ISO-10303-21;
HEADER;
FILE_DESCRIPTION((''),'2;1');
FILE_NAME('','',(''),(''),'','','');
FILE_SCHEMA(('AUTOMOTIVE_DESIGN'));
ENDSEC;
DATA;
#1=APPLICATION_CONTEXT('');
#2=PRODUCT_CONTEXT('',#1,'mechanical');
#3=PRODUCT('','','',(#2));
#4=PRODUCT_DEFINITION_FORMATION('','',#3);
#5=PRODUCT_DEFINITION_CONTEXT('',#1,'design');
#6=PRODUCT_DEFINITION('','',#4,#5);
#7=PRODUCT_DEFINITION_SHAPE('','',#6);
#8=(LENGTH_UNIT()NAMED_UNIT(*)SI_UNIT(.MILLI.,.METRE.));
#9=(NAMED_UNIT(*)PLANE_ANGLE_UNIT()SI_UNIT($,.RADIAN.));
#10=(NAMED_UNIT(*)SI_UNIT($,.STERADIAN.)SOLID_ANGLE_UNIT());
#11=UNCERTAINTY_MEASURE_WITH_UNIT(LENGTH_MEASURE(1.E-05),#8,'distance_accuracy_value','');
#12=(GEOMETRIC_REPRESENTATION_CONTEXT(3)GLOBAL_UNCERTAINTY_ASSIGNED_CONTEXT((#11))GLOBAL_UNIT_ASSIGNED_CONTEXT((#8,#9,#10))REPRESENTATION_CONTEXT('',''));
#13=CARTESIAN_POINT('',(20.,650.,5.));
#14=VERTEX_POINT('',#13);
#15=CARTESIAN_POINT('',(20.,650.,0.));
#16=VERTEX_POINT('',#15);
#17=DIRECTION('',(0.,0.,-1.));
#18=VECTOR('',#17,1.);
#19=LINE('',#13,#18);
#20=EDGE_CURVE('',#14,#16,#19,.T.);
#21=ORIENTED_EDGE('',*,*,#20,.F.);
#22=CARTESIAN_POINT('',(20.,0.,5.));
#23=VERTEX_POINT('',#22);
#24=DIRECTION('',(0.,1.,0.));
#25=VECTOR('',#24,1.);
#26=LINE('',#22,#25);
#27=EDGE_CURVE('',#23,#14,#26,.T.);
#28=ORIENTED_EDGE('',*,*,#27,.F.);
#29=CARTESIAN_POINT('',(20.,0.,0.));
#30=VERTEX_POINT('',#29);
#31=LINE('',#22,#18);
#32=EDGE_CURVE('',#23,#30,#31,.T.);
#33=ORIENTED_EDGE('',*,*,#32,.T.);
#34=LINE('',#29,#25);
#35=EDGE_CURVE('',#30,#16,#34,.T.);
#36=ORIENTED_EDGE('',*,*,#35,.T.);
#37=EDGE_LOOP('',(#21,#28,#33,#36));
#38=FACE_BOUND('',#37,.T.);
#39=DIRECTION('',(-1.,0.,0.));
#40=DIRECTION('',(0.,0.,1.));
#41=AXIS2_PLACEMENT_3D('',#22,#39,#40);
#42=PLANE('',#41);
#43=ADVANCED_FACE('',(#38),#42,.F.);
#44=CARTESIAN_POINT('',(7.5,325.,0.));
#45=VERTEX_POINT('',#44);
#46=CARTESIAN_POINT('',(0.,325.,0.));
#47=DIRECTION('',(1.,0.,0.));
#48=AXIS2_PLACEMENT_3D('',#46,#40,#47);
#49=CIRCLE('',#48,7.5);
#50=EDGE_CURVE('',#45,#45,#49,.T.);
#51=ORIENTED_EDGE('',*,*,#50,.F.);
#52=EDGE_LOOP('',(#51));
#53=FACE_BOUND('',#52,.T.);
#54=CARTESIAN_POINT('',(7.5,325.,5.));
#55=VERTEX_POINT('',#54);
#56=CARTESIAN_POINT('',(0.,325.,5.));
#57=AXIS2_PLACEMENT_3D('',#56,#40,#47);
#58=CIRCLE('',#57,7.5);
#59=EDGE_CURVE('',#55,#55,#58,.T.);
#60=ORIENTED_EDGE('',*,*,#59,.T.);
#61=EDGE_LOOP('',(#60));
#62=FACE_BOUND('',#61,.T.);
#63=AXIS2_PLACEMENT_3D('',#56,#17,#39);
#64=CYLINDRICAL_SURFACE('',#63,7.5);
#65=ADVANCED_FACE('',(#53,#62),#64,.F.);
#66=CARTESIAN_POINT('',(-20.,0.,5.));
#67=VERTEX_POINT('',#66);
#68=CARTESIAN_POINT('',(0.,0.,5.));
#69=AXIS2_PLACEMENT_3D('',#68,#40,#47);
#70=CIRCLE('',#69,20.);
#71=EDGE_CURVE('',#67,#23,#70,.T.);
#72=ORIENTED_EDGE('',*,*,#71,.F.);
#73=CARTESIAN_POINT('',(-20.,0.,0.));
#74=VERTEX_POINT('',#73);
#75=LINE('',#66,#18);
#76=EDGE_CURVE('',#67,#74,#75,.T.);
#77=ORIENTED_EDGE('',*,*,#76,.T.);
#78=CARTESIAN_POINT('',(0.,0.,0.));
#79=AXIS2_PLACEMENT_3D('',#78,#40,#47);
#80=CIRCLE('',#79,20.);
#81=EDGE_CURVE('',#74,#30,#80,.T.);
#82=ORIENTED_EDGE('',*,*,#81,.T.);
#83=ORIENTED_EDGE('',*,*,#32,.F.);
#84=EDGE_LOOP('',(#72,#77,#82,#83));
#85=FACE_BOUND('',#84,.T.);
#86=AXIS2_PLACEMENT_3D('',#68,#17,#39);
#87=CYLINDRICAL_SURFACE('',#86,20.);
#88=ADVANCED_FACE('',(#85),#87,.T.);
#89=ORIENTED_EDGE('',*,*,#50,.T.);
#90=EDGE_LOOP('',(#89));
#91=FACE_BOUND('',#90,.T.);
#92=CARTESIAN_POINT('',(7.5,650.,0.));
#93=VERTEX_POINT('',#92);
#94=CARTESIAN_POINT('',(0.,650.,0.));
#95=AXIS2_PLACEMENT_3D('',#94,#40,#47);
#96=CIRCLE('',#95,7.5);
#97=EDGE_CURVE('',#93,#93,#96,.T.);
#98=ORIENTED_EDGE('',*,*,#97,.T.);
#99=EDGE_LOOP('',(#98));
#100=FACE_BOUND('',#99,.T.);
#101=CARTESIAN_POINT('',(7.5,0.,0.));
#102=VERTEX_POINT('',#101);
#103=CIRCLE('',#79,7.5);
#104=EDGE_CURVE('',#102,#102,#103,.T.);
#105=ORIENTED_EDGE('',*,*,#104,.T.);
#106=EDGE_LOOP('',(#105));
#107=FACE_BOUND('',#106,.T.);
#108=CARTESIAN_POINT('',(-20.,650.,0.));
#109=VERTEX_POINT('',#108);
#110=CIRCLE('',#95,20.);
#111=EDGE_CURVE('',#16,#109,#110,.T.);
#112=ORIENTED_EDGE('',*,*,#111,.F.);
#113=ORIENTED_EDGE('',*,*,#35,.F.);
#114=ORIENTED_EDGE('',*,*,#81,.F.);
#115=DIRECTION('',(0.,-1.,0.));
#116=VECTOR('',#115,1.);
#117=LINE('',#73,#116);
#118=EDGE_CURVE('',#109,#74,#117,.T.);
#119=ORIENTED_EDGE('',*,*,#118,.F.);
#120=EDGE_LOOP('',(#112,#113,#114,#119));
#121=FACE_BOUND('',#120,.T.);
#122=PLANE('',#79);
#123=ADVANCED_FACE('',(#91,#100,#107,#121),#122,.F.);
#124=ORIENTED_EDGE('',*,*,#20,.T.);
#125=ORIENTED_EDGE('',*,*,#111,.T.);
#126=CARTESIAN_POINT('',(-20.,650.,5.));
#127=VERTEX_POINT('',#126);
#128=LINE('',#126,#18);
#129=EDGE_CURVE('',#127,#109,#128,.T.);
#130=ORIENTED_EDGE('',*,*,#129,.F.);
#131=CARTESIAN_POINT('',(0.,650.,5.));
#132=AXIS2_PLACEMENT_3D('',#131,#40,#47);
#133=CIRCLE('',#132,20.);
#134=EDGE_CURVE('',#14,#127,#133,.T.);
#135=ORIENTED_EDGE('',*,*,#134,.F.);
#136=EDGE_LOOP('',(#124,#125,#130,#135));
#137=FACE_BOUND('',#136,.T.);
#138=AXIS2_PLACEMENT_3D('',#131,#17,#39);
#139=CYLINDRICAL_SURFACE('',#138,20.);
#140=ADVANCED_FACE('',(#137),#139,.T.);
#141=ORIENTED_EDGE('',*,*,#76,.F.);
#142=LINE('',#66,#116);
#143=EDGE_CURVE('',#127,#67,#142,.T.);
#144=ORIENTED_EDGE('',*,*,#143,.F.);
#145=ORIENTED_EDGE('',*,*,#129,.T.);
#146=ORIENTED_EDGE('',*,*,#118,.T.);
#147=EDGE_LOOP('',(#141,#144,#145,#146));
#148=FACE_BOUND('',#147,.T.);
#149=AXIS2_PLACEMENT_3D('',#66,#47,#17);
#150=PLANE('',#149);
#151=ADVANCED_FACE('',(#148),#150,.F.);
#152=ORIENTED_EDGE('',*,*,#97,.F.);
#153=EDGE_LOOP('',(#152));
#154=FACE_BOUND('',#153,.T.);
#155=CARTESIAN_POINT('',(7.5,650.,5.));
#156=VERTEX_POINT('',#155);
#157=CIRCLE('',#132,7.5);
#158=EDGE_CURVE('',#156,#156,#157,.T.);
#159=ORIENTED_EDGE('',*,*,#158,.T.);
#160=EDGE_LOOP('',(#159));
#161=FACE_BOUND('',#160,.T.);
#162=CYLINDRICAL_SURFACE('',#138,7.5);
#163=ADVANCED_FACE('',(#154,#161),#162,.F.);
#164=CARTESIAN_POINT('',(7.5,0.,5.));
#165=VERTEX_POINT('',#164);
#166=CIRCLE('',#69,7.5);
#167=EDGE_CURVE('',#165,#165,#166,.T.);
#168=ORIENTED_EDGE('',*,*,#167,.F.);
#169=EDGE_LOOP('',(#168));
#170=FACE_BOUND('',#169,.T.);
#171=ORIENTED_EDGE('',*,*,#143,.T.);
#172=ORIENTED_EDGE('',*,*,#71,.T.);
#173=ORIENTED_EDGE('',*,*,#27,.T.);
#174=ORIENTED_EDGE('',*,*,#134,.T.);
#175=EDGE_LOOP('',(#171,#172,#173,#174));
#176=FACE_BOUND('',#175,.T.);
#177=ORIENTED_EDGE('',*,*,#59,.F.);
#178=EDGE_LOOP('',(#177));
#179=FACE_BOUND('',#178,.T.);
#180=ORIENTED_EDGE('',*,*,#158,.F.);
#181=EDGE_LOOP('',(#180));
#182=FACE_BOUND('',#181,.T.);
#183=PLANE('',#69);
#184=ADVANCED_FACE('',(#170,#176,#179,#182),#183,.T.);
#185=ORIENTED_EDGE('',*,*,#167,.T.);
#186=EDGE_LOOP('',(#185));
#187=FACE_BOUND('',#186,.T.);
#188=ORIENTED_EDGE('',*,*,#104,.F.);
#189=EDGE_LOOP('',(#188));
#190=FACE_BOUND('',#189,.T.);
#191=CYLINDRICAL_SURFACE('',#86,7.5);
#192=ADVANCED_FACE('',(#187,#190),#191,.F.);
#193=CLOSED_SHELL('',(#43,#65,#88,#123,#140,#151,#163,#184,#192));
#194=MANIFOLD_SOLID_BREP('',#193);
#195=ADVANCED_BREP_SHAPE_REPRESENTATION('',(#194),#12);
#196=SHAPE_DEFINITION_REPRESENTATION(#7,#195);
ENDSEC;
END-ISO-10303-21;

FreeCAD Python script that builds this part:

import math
import FreeCAD as App
import Part
import Sketcher

doc = App.newDocument("Part")
body = doc.addObject("PartDesign::Body", "Body")

# Sketch on XY plane
sketch1 = doc.addObject("Sketcher::SketchObject", "Sketch")
body.addObject(sketch1)
sketch1.AttachmentSupport = (doc.XY_Plane, [""])
sketch1.MapMode = "FlatFace"
sketch1.addGeometry([
    Part.LineSegment(App.Vector(-20, 650, 0), App.Vector(-20, 0, 0)),  # 0
    Part.ArcOfCircle(Part.Circle(App.Vector(0, 0, 0), App.Vector(0, 0, 1), 20), math.radians(180), math.radians(360)),  # 1
    Part.LineSegment(App.Vector(20, 0, 0), App.Vector(20, 650, 0)),  # 2
    Part.ArcOfCircle(Part.Circle(App.Vector(0, 650, 0), App.Vector(0, 0, 1), 20), math.radians(0), math.radians(180)),  # 3
    Part.Circle(App.Vector(0, 0, 0), App.Vector(0, 0, 1), 8),  # 4
    Part.Circle(App.Vector(0, 325, 0), App.Vector(0, 0, 1), 8),  # 5
    Part.Circle(App.Vector(0, 650, 0), App.Vector(0, 0, 1), 8),  # 6
], False)
sketch1.addConstraint([
    Sketcher.Constraint("Tangent", 0, 2, 1, 1),
    Sketcher.Constraint("Tangent", 1, 2, 2, 1),
    Sketcher.Constraint("Tangent", 2, 2, 3, 1),
    Sketcher.Constraint("Tangent", 3, 2, 0, 1),
    Sketcher.Constraint("Vertical", 0),
    Sketcher.Constraint("Vertical", 2),
    Sketcher.Constraint("Coincident", 1, 3, -1, 1),
    Sketcher.Constraint("Coincident", 4, 3, -1, 1),
    Sketcher.Constraint("Coincident", 6, 3, 3, 3),
    Sketcher.Constraint("Equal", 4, 5),
    Sketcher.Constraint("Equal", 5, 6),
    Sketcher.Constraint("PointOnObject", 5, 3, -2),
    Sketcher.Constraint("Diameter", 4, 15.0),
    Sketcher.Constraint("Radius", 1, 20.0),
    Sketcher.Constraint("DistanceY", 0, 2, 0, 1, 650.0),
    Sketcher.Constraint("DistanceY", -1, 1, 5, 3, 325.0),
])
pad1 = doc.addObject("PartDesign::Pad", "Pad")
body.addObject(pad1)
pad1.Profile = sketch1
pad1.Length = 5

doc.recompute()
